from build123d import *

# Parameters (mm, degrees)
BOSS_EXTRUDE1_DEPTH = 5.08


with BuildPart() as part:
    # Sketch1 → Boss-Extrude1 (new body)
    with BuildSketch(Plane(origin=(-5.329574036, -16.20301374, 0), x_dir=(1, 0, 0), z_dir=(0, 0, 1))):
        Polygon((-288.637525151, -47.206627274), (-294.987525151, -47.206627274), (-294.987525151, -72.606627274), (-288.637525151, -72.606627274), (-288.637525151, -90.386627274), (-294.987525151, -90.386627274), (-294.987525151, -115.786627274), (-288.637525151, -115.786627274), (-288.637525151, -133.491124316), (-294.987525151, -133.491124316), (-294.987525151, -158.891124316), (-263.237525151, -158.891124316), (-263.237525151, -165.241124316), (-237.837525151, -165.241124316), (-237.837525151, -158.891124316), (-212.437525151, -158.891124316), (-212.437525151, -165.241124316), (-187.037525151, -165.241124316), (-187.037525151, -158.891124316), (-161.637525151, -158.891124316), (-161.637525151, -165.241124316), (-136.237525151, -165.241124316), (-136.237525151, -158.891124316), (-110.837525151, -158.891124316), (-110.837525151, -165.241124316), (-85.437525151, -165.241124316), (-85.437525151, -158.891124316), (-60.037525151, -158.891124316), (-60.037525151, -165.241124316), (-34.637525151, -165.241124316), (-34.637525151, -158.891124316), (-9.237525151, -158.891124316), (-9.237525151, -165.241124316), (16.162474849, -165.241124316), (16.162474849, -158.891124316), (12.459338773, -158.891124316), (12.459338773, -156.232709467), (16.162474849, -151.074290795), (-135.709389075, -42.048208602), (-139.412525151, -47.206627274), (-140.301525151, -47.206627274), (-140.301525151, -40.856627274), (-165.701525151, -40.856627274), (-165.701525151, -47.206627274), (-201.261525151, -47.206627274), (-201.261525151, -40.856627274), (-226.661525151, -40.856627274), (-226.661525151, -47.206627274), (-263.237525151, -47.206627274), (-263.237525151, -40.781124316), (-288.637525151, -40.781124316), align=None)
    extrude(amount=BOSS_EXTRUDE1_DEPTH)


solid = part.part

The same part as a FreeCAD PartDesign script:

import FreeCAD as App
import Part
import Sketcher
from FreeCAD import Vector
Q = App.Units.Quantity

doc = App.newDocument("Part")
params = doc.addObject("Spreadsheet::Sheet", "Params")
for row, (alias, value) in enumerate([
    ("sketch1_width", "1 in"),
    ("sketch1_width2", "1.4 in"),
    ("sketch1_height", "0.7 in"),
    ("sketch1_width3", "0.25 in"),
    ("sketch1_width4", "1.44 in"),
    ("pad1_length", "0.2 in"),
], start=1):
    params.set(f"A{row}", alias)
    params.set(f"B{row}", "=" + value)
    params.setAlias(f"B{row}", alias)

body = doc.addObject("PartDesign::Body", "Body")

sketch1 = body.newObject("Sketcher::SketchObject", "Sketch")
sketch1.AttachmentSupport = (doc.getObject("XY_Plane"), [""])
sketch1.MapMode = "FlatFace"
sketch1.addGeometry([
    Part.LineSegment(Vector(-293.967099, -63.409641, 0), Vector(-300.317099, -63.409641, 0)),
    Part.LineSegment(Vector(-300.317099, -63.409641, 0), Vector(-300.317099, -88.809641, 0)),
    Part.LineSegment(Vector(-300.317099, -88.809641, 0), Vector(-293.967099, -88.809641, 0)),
    Part.LineSegment(Vector(-293.967099, -88.809641, 0), Vector(-293.967099, -106.589641, 0)),
    Part.LineSegment(Vector(-293.967099, -106.589641, 0), Vector(-300.317099, -106.589641, 0)),
    Part.LineSegment(Vector(-300.317099, -106.589641, 0), Vector(-300.317099, -131.989641, 0)),
    Part.LineSegment(Vector(-300.317099, -131.989641, 0), Vector(-293.967099, -131.989641, 0)),
    Part.LineSegment(Vector(-293.967099, -131.989641, 0), Vector(-293.967099, -149.694138, 0)),
    Part.LineSegment(Vector(-293.967099, -149.694138, 0), Vector(-300.317099, -149.694138, 0)),
    Part.LineSegment(Vector(-300.317099, -149.694138, 0), Vector(-300.317099, -175.094138, 0)),
    Part.LineSegment(Vector(-300.317099, -175.094138, 0), Vector(-268.567099, -175.094138, 0)),
    Part.LineSegment(Vector(-268.567099, -175.094138, 0), Vector(-268.567099, -181.444138, 0)),
    Part.LineSegment(Vector(-268.567099, -181.444138, 0), Vector(-243.167099, -181.444138, 0)),
    Part.LineSegment(Vector(-243.167099, -181.444138, 0), Vector(-243.167099, -175.094138, 0)),
    Part.LineSegment(Vector(-243.167099, -175.094138, 0), Vector(-217.767099, -175.094138, 0)),
    Part.LineSegment(Vector(-217.767099, -175.094138, 0), Vector(-217.767099, -181.444138, 0)),
    Part.LineSegment(Vector(-217.767099, -181.444138, 0), Vector(-192.367099, -181.444138, 0)),
    Part.LineSegment(Vector(-192.367099, -181.444138, 0), Vector(-192.367099, -175.094138, 0)),
    Part.LineSegment(Vector(-192.367099, -175.094138, 0), Vector(-166.967099, -175.094138, 0)),
    Part.LineSegment(Vector(-166.967099, -175.094138, 0), Vector(-166.967099, -181.444138, 0)),
    Part.LineSegment(Vector(-166.967099, -181.444138, 0), Vector(-141.567099, -181.444138, 0)),
    Part.LineSegment(Vector(-141.567099, -181.444138, 0), Vector(-141.567099, -175.094138, 0)),
    Part.LineSegment(Vector(-141.567099, -175.094138, 0), Vector(-116.167099, -175.094138, 0)),
    Part.LineSegment(Vector(-116.167099, -175.094138, 0), Vector(-116.167099, -181.444138, 0)),
    Part.LineSegment(Vector(-116.167099, -181.444138, 0), Vector(-90.767099, -181.444138, 0)),
    Part.LineSegment(Vector(-90.767099, -181.444138, 0), Vector(-90.767099, -175.094138, 0)),
    Part.LineSegment(Vector(-90.767099, -175.094138, 0), Vector(-65.367099, -175.094138, 0)),
    Part.LineSegment(Vector(-65.367099, -175.094138, 0), Vector(-65.367099, -181.444138, 0)),
    Part.LineSegment(Vector(-65.367099, -181.444138, 0), Vector(-39.967099, -181.444138, 0)),
    Part.LineSegment(Vector(-39.967099, -181.444138, 0), Vector(-39.967099, -175.094138, 0)),
    Part.LineSegment(Vector(-39.967099, -175.094138, 0), Vector(-14.567099, -175.094138, 0)),
    Part.LineSegment(Vector(-14.567099, -175.094138, 0), Vector(-14.567099, -181.444138, 0)),
    Part.LineSegment(Vector(-14.567099, -181.444138, 0), Vector(10.832901, -181.444138, 0)),
    Part.LineSegment(Vector(10.832901, -181.444138, 0), Vector(10.832901, -175.094138, 0)),
    Part.LineSegment(Vector(10.832901, -175.094138, 0), Vector(7.129765, -175.094138, 0)),
    Part.LineSegment(Vector(7.129765, -175.094138, 0), Vector(7.129765, -172.435723, 0)),
    Part.LineSegment(Vector(7.129765, -172.435723, 0), Vector(10.832901, -167.277305, 0)),
    Part.LineSegment(Vector(10.832901, -167.277305, 0), Vector(-141.038963, -58.251222, 0)),
    Part.LineSegment(Vector(-141.038963, -58.251222, 0), Vector(-144.742099, -63.409641, 0)),
    Part.LineSegment(Vector(-144.742099, -63.409641, 0), Vector(-145.631099, -63.409641, 0)),
    Part.LineSegment(Vector(-145.631099, -63.409641, 0), Vector(-145.631099, -57.059641, 0)),
    Part.LineSegment(Vector(-145.631099, -57.059641, 0), Vector(-171.031099, -57.059641, 0)),
    Part.LineSegment(Vector(-171.031099, -57.059641, 0), Vector(-171.031099, -63.409641, 0)),
    Part.LineSegment(Vector(-171.031099, -63.409641, 0), Vector(-206.591099, -63.409641, 0)),
    Part.LineSegment(Vector(-206.591099, -63.409641, 0), Vector(-206.591099, -57.059641, 0)),
    Part.LineSegment(Vector(-206.591099, -57.059641, 0), Vector(-231.991099, -57.059641, 0)),
    Part.LineSegment(Vector(-231.991099, -57.059641, 0), Vector(-231.991099, -63.409641, 0)),
    Part.LineSegment(Vector(-231.991099, -63.409641, 0), Vector(-268.567099, -63.409641, 0)),
    Part.LineSegment(Vector(-268.567099, -63.409641, 0), Vector(-268.567099, -56.984138, 0)),
    Part.LineSegment(Vector(-268.567099, -56.984138, 0), Vector(-293.967099, -56.984138, 0)),
    Part.LineSegment(Vector(-293.967099, -56.984138, 0), Vector(-293.967099, -63.409641, 0)),
], False)
sketch1.addConstraint([
    Sketcher.Constraint("Coincident", 0, 2, 1, 1),
    Sketcher.Constraint("Coincident", 1, 2, 2, 1),
    Sketcher.Constraint("Coincident", 2, 2, 3, 1),
    Sketcher.Constraint("Coincident", 3, 2, 4, 1),
    Sketcher.Constraint("Coincident", 4, 2, 5, 1),
    Sketcher.Constraint("Coincident", 5, 2, 6, 1),
    Sketcher.Constraint("Coincident", 6, 2, 7, 1),
    Sketcher.Constraint("Coincident", 7, 2, 8, 1),
    Sketcher.Constraint("Coincident", 8, 2, 9, 1),
    Sketcher.Constraint("Coincident", 9, 2, 10, 1),
    Sketcher.Constraint("Coincident", 10, 2, 11, 1),
    Sketcher.Constraint("Coincident", 11, 2, 12, 1),
    Sketcher.Constraint("Coincident", 12, 2, 13, 1),
    Sketcher.Constraint("Coincident", 13, 2, 14, 1),
    Sketcher.Constraint("Coincident", 14, 2, 15, 1),
    Sketcher.Constraint("Coincident", 15, 2, 16, 1),
    Sketcher.Constraint("Coincident", 16, 2, 17, 1),
    Sketcher.Constraint("Coincident", 17, 2, 18, 1),
    Sketcher.Constraint("Coincident", 18, 2, 19, 1),
    Sketcher.Constraint("Coincident", 19, 2, 20, 1),
    Sketcher.Constraint("Coincident", 20, 2, 21, 1),
    Sketcher.Constraint("Coincident", 21, 2, 22, 1),
    Sketcher.Constraint("Coincident", 22, 2, 23, 1),
    Sketcher.Constraint("Coincident", 23, 2, 24, 1),
    Sketcher.Constraint("Coincident", 24, 2, 25, 1),
    Sketcher.Constraint("Coincident", 25, 2, 26, 1),
    Sketcher.Constraint("Coincident", 26, 2, 27, 1),
    Sketcher.Constraint("Coincident", 27, 2, 28, 1),
    Sketcher.Constraint("Coincident", 28, 2, 29, 1),
    Sketcher.Constraint("Coincident", 29, 2, 30, 1),
    Sketcher.Constraint("Coincident", 30, 2, 31, 1),
    Sketcher.Constraint("Coincident", 31, 2, 32, 1),
    Sketcher.Constraint("Coincident", 32, 2, 33, 1),
    Sketcher.Constraint("Coincident", 33, 2, 34, 1),
    Sketcher.Constraint("Coincident", 34, 2, 35, 1),
    Sketcher.Constraint("Coincident", 35, 2, 36, 1),
    Sketcher.Constraint("Coincident", 36, 2, 37, 1),
    Sketcher.Constraint("Coincident", 37, 2, 38, 1),
    Sketcher.Constraint("Coincident", 38, 2, 39, 1),
    Sketcher.Constraint("Coincident", 39, 2, 40, 1),
    Sketcher.Constraint("Coincident", 40, 2, 41, 1),
    Sketcher.Constraint("Coincident", 41, 2, 42, 1),
    Sketcher.Constraint("Coincident", 42, 2, 43, 1),
    Sketcher.Constraint("Coincident", 43, 2, 44, 1),
    Sketcher.Constraint("Coincident", 44, 2, 45, 1),
    Sketcher.Constraint("Coincident", 45, 2, 46, 1),
    Sketcher.Constraint("Coincident", 46, 2, 47, 1),
    Sketcher.Constraint("Coincident", 47, 2, 48, 1),
    Sketcher.Constraint("Coincident", 48, 2, 49, 1),
    Sketcher.Constraint("Coincident", 49, 2, 50, 1),
    Sketcher.Constraint("Coincident", 50, 2, 0, 1),
    Sketcher.Constraint("Horizontal", 0),
    Sketcher.Constraint("Vertical", 1),
    Sketcher.Constraint("Horizontal", 2),
    Sketcher.Constraint("Vertical", 3),
    Sketcher.Constraint("Horizontal", 4),
    Sketcher.Constraint("Vertical", 5),
    Sketcher.Constraint("Horizontal", 6),
    Sketcher.Constraint("Vertical", 7),
    Sketcher.Constraint("Horizontal", 8),
    Sketcher.Constraint("Vertical", 9),
    Sketcher.Constraint("Horizontal", 10),
    Sketcher.Constraint("Vertical", 11),
    Sketcher.Constraint("Horizontal", 12),
    Sketcher.Constraint("Vertical", 13),
    Sketcher.Constraint("Horizontal", 14),
    Sketcher.Constraint("Vertical", 15),
    Sketcher.Constraint("Horizontal", 16),
    Sketcher.Constraint("Vertical", 17),
    Sketcher.Constraint("Horizontal", 18),
    Sketcher.Constraint("Vertical", 19),
    Sketcher.Constraint("Horizontal", 20),
    Sketcher.Constraint("Vertical", 21),
    Sketcher.Constraint("Horizontal", 22),
    Sketcher.Constraint("Vertical", 23),
    Sketcher.Constraint("Horizontal", 24),
    Sketcher.Constraint("Vertical", 25),
    Sketcher.Constraint("Horizontal", 26),
    Sketcher.Constraint("Vertical", 27),
    Sketcher.Constraint("Horizontal", 28),
    Sketcher.Constraint("Vertical", 29),
    Sketcher.Constraint("Horizontal", 30),
    Sketcher.Constraint("Vertical", 31),
    Sketcher.Constraint("Horizontal", 32),
    Sketcher.Constraint("Vertical", 33),
    Sketcher.Constraint("Horizontal", 34),
    Sketcher.Constraint("Vertical", 35),
    Sketcher.Constraint("Horizontal", 39),
    Sketcher.Constraint("Vertical", 40),
    Sketcher.Constraint("Horizontal", 41),
    Sketcher.Constraint("Vertical", 42),
    Sketcher.Constraint("Horizontal", 43),
    Sketcher.Constraint("Vertical", 44),
    Sketcher.Constraint("Horizontal", 45),
    Sketcher.Constraint("Vertical", 46),
    Sketcher.Constraint("Horizontal", 47),
    Sketcher.Constraint("Vertical", 48),
    Sketcher.Constraint("Horizontal", 49),
    Sketcher.Constraint("Vertical", 50),
    Sketcher.Constraint("Perpendicular", 36, 37),
    Sketcher.Constraint("Perpendicular", 37, 38),
    Sketcher.Constraint("Horizontal", 10, 2, 13, 2),
    Sketcher.Constraint("Horizontal", 12, 2, 15, 2),
    Sketcher.Constraint("Horizontal", 14, 2, 17, 2),
    Sketcher.Constraint("Horizontal", 16, 2, 19, 2),
    Sketcher.Constraint("Horizontal", 18, 2, 21, 2),
    Sketcher.Constraint("Horizontal", 20, 2, 23, 2),
    Sketcher.Constraint("Horizontal", 22, 2, 25, 2),
    Sketcher.Constraint("Horizontal", 24, 2, 27, 2),
    Sketcher.Constraint("Horizontal", 26, 2, 29, 2),
    Sketcher.Constraint("Horizontal", 28, 2, 31, 2),
    Sketcher.Constraint("Horizontal", 30, 2, 33, 2),
    Sketcher.Constraint("Horizontal", 0, 2, 38, 2),
    Sketcher.Constraint("Horizontal", 39, 2, 42, 2),
    Sketcher.Constraint("Horizontal", 41, 2, 44, 2),
    Sketcher.Constraint("Horizontal", 43, 2, 46, 2),
    Sketcher.Constraint("Vertical", 1, 2, 4, 2),
    Sketcher.Constraint("Vertical", 3, 2, 6, 2),
    Sketcher.Constraint("Vertical", 5, 2, 8, 2),
    Sketcher.Constraint("Vertical", 33, 2, 36, 2),
    Sketcher.Constraint("Vertical", 11, 2, 47, 2),
    Sketcher.Constraint("Vertical", 7, 2, 49, 2),
    Sketcher.Constraint("Equal", 12, 14),
    Sketcher.Constraint("Equal", 14, 16),
    Sketcher.Constraint("Equal", 16, 18),
    Sketcher.Constraint("Equal", 18, 20),
    Sketcher.Constraint("Equal", 20, 22),
    Sketcher.Constraint("Equal", 22, 24),
    Sketcher.Constraint("Equal", 24, 26),
    Sketcher.Constraint("Equal", 26, 28),
    Sketcher.Constraint("Equal", 28, 30),
    Sketcher.Constraint("Equal", 30, 32),
    Sketcher.Constraint("Equal", 32, 41),
    Sketcher.Constraint("Equal", 41, 45),
    Sketcher.Constraint("Equal", 45, 49),
    Sketcher.Constraint("Equal", 49, 1),
    Sketcher.Constraint("Equal", 1, 5),
    Sketcher.Constraint("Equal", 5, 9),
    Sketcher.Constraint("Equal", 8, 11),
    Sketcher.Constraint("Equal", 33, 40),
    Sketcher.Constraint("Equal", 36, 38),
    Sketcher.Constraint("DistanceX", 12, 1, 12, 2, Q("1 in")),
    Sketcher.Constraint("DistanceX", 43, 2, 43, 1, Q("1.4 in")),
    Sketcher.Constraint("DistanceY", 3, 2, 3, 1, Q("0.7 in")),
    Sketcher.Constraint("DistanceX", 0, 2, 0, 1, Q("0.25 in")),
    Sketcher.Constraint("DistanceX", 47, 2, 47, 1, Q("1.44 in")),
    Sketcher.Constraint("Distance", 36, Q("0.25 in")),
    Sketcher.Constraint("DistanceX", 39, 2, 39, 1, Q("0.035 in")),
    Sketcher.Constraint("DistanceX", 0, 2, -1, 1, 300.317099),
    Sketcher.Constraint("Distance", 37, 186.95387),
    Sketcher.Constraint("DistanceY", 7, 2, 7, 1, 17.704497),
    Sketcher.Constraint("DistanceY", 48, 1, 48, 2, 6.425503),
    Sketcher.Constraint("DistanceY", 0, 2, -1, 1, 63.409641),
])
sketch1.setExpression("Constraints[141]", "Params.sketch1_width")
sketch1.setExpression("Constraints[142]", "Params.sketch1_width2")
sketch1.setExpression("Constraints[143]", "Params.sketch1_height")
sketch1.setExpression("Constraints[144]", "Params.sketch1_width3")
sketch1.setExpression("Constraints[145]", "Params.sketch1_width4")
pad1 = body.newObject("PartDesign::Pad", "Pad")
pad1.Profile = sketch1
pad1.setExpression("Length", "Params.pad1_length")

doc.recompute()
